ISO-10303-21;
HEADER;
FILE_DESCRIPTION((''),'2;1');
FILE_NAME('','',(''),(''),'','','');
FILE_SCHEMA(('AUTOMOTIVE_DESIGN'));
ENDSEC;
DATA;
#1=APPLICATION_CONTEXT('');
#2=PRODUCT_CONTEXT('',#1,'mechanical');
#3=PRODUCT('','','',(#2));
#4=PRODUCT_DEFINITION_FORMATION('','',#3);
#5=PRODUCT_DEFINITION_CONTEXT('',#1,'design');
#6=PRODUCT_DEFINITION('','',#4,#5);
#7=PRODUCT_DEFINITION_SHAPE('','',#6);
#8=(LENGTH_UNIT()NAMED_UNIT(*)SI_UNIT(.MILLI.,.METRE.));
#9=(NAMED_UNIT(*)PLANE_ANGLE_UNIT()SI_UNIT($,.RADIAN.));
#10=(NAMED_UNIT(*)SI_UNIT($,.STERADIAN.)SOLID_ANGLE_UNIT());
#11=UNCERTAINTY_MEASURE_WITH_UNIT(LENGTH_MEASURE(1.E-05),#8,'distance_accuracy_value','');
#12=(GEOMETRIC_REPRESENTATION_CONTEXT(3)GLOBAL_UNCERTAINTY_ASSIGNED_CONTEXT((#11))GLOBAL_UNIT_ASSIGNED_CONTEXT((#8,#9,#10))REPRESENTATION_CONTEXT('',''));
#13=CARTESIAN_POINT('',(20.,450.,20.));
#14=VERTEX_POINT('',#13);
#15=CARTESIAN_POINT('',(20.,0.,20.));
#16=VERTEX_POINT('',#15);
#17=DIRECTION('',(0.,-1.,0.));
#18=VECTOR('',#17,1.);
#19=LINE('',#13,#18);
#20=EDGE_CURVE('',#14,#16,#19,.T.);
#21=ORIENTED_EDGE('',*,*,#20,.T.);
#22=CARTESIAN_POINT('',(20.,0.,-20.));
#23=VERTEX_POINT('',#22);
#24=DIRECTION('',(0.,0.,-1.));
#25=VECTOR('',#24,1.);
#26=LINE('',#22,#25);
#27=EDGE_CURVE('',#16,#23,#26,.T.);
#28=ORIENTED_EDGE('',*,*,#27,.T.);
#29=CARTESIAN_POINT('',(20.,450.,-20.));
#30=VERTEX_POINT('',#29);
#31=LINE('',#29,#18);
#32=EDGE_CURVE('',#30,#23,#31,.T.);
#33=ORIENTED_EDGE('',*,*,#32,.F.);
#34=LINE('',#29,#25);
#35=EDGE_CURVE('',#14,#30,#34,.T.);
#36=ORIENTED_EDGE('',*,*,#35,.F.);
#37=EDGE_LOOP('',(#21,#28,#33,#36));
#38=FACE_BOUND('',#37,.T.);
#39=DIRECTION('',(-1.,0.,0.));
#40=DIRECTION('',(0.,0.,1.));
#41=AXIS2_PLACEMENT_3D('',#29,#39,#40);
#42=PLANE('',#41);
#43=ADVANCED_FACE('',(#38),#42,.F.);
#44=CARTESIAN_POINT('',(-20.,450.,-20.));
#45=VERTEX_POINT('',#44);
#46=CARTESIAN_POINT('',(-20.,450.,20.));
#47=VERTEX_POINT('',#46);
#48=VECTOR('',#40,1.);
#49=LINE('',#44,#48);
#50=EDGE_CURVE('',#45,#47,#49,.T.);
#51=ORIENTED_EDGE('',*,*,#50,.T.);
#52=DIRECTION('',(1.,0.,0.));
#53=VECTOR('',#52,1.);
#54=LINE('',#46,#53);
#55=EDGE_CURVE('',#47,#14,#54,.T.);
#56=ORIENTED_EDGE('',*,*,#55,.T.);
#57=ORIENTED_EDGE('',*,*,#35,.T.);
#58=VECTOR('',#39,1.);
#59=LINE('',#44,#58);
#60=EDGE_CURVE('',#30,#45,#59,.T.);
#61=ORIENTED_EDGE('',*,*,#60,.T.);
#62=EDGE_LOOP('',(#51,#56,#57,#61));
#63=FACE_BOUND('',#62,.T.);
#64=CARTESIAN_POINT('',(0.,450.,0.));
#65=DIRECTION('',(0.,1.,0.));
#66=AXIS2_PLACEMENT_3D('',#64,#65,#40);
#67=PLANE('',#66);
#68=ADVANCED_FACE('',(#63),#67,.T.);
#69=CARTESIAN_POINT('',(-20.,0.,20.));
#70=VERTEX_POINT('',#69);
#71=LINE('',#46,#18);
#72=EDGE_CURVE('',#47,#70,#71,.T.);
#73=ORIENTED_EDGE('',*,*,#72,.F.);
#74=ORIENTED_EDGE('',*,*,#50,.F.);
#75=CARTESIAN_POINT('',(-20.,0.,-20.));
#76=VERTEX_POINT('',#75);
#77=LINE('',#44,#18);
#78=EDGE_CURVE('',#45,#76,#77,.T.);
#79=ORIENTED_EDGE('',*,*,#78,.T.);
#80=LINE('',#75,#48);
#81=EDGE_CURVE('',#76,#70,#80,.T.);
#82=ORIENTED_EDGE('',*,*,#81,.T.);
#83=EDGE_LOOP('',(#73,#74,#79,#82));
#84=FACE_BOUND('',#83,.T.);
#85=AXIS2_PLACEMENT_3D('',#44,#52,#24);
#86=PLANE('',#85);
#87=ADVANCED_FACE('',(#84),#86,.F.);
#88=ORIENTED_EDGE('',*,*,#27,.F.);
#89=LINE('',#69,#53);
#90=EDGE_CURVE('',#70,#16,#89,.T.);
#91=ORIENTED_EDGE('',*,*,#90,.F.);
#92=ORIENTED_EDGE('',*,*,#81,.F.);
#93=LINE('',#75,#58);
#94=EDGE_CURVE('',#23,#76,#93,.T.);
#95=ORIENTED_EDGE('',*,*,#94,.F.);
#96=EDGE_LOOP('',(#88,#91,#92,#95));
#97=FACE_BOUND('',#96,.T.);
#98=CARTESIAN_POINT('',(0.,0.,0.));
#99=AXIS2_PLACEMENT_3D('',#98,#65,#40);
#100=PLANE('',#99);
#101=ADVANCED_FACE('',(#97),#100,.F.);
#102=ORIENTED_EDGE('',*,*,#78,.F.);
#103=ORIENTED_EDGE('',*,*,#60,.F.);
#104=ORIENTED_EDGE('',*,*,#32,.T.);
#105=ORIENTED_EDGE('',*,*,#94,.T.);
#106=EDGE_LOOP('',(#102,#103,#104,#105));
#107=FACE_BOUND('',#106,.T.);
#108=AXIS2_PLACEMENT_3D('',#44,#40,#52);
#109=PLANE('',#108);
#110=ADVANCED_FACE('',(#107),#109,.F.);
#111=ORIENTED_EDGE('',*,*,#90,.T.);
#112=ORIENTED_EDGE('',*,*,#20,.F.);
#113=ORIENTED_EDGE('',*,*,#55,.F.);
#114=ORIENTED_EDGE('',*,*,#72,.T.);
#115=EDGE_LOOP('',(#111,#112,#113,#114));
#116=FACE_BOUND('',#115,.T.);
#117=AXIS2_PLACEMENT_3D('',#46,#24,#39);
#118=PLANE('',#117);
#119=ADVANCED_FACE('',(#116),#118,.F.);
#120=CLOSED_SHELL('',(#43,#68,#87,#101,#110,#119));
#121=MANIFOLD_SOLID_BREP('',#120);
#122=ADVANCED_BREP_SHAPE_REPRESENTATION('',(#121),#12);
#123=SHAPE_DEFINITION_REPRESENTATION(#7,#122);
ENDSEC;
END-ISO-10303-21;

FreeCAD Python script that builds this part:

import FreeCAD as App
import Part
import Sketcher
from FreeCAD import Vector


def add_polygon(sketch, points):
    """Adds a closed chain of lines whose ends are joined by coincident constraints."""
    first, n = sketch.GeometryCount, len(points)
    for a, b in zip(points, points[1:] + points[:1]):
        sketch.addGeometry(Part.LineSegment(App.Vector(*a, 0), App.Vector(*b, 0)), False)
    for i in range(n):
        sketch.addConstraint(Sketcher.Constraint("Coincident", first + i, 2, first + (i + 1) % n, 1))

doc = App.newDocument("Part")
body = doc.addObject("PartDesign::Body", "Body")

# Sketch on XZ plane
sketch1 = body.newObject("Sketcher::SketchObject", "Sketch")
sketch1.AttachmentSupport = (doc.getObject("XZ_Plane"), [""])
sketch1.MapMode = "FlatFace"
add_polygon(sketch1, [(-20, -20), (-20, 20), (20, 20), (20, -20)])  # lines 0-3
sketch1.addConstraint([
    Sketcher.Constraint("Vertical", 0),
    Sketcher.Constraint("Horizontal", 1),
    Sketcher.Constraint("Vertical", 2),
    Sketcher.Constraint("Horizontal", 3),
    Sketcher.Constraint("Symmetric", 0, 2, 2, 2, -1, 1),
    Sketcher.Constraint("Equal", 3, 0),
    Sketcher.Constraint("DistanceX", 1, 1, 1, 2, 40.0),
])
pad1 = body.newObject("PartDesign::Pad", "Pad")
pad1.Profile = sketch1
pad1.Length = 450
pad1.Reversed = True

doc.recompute()
